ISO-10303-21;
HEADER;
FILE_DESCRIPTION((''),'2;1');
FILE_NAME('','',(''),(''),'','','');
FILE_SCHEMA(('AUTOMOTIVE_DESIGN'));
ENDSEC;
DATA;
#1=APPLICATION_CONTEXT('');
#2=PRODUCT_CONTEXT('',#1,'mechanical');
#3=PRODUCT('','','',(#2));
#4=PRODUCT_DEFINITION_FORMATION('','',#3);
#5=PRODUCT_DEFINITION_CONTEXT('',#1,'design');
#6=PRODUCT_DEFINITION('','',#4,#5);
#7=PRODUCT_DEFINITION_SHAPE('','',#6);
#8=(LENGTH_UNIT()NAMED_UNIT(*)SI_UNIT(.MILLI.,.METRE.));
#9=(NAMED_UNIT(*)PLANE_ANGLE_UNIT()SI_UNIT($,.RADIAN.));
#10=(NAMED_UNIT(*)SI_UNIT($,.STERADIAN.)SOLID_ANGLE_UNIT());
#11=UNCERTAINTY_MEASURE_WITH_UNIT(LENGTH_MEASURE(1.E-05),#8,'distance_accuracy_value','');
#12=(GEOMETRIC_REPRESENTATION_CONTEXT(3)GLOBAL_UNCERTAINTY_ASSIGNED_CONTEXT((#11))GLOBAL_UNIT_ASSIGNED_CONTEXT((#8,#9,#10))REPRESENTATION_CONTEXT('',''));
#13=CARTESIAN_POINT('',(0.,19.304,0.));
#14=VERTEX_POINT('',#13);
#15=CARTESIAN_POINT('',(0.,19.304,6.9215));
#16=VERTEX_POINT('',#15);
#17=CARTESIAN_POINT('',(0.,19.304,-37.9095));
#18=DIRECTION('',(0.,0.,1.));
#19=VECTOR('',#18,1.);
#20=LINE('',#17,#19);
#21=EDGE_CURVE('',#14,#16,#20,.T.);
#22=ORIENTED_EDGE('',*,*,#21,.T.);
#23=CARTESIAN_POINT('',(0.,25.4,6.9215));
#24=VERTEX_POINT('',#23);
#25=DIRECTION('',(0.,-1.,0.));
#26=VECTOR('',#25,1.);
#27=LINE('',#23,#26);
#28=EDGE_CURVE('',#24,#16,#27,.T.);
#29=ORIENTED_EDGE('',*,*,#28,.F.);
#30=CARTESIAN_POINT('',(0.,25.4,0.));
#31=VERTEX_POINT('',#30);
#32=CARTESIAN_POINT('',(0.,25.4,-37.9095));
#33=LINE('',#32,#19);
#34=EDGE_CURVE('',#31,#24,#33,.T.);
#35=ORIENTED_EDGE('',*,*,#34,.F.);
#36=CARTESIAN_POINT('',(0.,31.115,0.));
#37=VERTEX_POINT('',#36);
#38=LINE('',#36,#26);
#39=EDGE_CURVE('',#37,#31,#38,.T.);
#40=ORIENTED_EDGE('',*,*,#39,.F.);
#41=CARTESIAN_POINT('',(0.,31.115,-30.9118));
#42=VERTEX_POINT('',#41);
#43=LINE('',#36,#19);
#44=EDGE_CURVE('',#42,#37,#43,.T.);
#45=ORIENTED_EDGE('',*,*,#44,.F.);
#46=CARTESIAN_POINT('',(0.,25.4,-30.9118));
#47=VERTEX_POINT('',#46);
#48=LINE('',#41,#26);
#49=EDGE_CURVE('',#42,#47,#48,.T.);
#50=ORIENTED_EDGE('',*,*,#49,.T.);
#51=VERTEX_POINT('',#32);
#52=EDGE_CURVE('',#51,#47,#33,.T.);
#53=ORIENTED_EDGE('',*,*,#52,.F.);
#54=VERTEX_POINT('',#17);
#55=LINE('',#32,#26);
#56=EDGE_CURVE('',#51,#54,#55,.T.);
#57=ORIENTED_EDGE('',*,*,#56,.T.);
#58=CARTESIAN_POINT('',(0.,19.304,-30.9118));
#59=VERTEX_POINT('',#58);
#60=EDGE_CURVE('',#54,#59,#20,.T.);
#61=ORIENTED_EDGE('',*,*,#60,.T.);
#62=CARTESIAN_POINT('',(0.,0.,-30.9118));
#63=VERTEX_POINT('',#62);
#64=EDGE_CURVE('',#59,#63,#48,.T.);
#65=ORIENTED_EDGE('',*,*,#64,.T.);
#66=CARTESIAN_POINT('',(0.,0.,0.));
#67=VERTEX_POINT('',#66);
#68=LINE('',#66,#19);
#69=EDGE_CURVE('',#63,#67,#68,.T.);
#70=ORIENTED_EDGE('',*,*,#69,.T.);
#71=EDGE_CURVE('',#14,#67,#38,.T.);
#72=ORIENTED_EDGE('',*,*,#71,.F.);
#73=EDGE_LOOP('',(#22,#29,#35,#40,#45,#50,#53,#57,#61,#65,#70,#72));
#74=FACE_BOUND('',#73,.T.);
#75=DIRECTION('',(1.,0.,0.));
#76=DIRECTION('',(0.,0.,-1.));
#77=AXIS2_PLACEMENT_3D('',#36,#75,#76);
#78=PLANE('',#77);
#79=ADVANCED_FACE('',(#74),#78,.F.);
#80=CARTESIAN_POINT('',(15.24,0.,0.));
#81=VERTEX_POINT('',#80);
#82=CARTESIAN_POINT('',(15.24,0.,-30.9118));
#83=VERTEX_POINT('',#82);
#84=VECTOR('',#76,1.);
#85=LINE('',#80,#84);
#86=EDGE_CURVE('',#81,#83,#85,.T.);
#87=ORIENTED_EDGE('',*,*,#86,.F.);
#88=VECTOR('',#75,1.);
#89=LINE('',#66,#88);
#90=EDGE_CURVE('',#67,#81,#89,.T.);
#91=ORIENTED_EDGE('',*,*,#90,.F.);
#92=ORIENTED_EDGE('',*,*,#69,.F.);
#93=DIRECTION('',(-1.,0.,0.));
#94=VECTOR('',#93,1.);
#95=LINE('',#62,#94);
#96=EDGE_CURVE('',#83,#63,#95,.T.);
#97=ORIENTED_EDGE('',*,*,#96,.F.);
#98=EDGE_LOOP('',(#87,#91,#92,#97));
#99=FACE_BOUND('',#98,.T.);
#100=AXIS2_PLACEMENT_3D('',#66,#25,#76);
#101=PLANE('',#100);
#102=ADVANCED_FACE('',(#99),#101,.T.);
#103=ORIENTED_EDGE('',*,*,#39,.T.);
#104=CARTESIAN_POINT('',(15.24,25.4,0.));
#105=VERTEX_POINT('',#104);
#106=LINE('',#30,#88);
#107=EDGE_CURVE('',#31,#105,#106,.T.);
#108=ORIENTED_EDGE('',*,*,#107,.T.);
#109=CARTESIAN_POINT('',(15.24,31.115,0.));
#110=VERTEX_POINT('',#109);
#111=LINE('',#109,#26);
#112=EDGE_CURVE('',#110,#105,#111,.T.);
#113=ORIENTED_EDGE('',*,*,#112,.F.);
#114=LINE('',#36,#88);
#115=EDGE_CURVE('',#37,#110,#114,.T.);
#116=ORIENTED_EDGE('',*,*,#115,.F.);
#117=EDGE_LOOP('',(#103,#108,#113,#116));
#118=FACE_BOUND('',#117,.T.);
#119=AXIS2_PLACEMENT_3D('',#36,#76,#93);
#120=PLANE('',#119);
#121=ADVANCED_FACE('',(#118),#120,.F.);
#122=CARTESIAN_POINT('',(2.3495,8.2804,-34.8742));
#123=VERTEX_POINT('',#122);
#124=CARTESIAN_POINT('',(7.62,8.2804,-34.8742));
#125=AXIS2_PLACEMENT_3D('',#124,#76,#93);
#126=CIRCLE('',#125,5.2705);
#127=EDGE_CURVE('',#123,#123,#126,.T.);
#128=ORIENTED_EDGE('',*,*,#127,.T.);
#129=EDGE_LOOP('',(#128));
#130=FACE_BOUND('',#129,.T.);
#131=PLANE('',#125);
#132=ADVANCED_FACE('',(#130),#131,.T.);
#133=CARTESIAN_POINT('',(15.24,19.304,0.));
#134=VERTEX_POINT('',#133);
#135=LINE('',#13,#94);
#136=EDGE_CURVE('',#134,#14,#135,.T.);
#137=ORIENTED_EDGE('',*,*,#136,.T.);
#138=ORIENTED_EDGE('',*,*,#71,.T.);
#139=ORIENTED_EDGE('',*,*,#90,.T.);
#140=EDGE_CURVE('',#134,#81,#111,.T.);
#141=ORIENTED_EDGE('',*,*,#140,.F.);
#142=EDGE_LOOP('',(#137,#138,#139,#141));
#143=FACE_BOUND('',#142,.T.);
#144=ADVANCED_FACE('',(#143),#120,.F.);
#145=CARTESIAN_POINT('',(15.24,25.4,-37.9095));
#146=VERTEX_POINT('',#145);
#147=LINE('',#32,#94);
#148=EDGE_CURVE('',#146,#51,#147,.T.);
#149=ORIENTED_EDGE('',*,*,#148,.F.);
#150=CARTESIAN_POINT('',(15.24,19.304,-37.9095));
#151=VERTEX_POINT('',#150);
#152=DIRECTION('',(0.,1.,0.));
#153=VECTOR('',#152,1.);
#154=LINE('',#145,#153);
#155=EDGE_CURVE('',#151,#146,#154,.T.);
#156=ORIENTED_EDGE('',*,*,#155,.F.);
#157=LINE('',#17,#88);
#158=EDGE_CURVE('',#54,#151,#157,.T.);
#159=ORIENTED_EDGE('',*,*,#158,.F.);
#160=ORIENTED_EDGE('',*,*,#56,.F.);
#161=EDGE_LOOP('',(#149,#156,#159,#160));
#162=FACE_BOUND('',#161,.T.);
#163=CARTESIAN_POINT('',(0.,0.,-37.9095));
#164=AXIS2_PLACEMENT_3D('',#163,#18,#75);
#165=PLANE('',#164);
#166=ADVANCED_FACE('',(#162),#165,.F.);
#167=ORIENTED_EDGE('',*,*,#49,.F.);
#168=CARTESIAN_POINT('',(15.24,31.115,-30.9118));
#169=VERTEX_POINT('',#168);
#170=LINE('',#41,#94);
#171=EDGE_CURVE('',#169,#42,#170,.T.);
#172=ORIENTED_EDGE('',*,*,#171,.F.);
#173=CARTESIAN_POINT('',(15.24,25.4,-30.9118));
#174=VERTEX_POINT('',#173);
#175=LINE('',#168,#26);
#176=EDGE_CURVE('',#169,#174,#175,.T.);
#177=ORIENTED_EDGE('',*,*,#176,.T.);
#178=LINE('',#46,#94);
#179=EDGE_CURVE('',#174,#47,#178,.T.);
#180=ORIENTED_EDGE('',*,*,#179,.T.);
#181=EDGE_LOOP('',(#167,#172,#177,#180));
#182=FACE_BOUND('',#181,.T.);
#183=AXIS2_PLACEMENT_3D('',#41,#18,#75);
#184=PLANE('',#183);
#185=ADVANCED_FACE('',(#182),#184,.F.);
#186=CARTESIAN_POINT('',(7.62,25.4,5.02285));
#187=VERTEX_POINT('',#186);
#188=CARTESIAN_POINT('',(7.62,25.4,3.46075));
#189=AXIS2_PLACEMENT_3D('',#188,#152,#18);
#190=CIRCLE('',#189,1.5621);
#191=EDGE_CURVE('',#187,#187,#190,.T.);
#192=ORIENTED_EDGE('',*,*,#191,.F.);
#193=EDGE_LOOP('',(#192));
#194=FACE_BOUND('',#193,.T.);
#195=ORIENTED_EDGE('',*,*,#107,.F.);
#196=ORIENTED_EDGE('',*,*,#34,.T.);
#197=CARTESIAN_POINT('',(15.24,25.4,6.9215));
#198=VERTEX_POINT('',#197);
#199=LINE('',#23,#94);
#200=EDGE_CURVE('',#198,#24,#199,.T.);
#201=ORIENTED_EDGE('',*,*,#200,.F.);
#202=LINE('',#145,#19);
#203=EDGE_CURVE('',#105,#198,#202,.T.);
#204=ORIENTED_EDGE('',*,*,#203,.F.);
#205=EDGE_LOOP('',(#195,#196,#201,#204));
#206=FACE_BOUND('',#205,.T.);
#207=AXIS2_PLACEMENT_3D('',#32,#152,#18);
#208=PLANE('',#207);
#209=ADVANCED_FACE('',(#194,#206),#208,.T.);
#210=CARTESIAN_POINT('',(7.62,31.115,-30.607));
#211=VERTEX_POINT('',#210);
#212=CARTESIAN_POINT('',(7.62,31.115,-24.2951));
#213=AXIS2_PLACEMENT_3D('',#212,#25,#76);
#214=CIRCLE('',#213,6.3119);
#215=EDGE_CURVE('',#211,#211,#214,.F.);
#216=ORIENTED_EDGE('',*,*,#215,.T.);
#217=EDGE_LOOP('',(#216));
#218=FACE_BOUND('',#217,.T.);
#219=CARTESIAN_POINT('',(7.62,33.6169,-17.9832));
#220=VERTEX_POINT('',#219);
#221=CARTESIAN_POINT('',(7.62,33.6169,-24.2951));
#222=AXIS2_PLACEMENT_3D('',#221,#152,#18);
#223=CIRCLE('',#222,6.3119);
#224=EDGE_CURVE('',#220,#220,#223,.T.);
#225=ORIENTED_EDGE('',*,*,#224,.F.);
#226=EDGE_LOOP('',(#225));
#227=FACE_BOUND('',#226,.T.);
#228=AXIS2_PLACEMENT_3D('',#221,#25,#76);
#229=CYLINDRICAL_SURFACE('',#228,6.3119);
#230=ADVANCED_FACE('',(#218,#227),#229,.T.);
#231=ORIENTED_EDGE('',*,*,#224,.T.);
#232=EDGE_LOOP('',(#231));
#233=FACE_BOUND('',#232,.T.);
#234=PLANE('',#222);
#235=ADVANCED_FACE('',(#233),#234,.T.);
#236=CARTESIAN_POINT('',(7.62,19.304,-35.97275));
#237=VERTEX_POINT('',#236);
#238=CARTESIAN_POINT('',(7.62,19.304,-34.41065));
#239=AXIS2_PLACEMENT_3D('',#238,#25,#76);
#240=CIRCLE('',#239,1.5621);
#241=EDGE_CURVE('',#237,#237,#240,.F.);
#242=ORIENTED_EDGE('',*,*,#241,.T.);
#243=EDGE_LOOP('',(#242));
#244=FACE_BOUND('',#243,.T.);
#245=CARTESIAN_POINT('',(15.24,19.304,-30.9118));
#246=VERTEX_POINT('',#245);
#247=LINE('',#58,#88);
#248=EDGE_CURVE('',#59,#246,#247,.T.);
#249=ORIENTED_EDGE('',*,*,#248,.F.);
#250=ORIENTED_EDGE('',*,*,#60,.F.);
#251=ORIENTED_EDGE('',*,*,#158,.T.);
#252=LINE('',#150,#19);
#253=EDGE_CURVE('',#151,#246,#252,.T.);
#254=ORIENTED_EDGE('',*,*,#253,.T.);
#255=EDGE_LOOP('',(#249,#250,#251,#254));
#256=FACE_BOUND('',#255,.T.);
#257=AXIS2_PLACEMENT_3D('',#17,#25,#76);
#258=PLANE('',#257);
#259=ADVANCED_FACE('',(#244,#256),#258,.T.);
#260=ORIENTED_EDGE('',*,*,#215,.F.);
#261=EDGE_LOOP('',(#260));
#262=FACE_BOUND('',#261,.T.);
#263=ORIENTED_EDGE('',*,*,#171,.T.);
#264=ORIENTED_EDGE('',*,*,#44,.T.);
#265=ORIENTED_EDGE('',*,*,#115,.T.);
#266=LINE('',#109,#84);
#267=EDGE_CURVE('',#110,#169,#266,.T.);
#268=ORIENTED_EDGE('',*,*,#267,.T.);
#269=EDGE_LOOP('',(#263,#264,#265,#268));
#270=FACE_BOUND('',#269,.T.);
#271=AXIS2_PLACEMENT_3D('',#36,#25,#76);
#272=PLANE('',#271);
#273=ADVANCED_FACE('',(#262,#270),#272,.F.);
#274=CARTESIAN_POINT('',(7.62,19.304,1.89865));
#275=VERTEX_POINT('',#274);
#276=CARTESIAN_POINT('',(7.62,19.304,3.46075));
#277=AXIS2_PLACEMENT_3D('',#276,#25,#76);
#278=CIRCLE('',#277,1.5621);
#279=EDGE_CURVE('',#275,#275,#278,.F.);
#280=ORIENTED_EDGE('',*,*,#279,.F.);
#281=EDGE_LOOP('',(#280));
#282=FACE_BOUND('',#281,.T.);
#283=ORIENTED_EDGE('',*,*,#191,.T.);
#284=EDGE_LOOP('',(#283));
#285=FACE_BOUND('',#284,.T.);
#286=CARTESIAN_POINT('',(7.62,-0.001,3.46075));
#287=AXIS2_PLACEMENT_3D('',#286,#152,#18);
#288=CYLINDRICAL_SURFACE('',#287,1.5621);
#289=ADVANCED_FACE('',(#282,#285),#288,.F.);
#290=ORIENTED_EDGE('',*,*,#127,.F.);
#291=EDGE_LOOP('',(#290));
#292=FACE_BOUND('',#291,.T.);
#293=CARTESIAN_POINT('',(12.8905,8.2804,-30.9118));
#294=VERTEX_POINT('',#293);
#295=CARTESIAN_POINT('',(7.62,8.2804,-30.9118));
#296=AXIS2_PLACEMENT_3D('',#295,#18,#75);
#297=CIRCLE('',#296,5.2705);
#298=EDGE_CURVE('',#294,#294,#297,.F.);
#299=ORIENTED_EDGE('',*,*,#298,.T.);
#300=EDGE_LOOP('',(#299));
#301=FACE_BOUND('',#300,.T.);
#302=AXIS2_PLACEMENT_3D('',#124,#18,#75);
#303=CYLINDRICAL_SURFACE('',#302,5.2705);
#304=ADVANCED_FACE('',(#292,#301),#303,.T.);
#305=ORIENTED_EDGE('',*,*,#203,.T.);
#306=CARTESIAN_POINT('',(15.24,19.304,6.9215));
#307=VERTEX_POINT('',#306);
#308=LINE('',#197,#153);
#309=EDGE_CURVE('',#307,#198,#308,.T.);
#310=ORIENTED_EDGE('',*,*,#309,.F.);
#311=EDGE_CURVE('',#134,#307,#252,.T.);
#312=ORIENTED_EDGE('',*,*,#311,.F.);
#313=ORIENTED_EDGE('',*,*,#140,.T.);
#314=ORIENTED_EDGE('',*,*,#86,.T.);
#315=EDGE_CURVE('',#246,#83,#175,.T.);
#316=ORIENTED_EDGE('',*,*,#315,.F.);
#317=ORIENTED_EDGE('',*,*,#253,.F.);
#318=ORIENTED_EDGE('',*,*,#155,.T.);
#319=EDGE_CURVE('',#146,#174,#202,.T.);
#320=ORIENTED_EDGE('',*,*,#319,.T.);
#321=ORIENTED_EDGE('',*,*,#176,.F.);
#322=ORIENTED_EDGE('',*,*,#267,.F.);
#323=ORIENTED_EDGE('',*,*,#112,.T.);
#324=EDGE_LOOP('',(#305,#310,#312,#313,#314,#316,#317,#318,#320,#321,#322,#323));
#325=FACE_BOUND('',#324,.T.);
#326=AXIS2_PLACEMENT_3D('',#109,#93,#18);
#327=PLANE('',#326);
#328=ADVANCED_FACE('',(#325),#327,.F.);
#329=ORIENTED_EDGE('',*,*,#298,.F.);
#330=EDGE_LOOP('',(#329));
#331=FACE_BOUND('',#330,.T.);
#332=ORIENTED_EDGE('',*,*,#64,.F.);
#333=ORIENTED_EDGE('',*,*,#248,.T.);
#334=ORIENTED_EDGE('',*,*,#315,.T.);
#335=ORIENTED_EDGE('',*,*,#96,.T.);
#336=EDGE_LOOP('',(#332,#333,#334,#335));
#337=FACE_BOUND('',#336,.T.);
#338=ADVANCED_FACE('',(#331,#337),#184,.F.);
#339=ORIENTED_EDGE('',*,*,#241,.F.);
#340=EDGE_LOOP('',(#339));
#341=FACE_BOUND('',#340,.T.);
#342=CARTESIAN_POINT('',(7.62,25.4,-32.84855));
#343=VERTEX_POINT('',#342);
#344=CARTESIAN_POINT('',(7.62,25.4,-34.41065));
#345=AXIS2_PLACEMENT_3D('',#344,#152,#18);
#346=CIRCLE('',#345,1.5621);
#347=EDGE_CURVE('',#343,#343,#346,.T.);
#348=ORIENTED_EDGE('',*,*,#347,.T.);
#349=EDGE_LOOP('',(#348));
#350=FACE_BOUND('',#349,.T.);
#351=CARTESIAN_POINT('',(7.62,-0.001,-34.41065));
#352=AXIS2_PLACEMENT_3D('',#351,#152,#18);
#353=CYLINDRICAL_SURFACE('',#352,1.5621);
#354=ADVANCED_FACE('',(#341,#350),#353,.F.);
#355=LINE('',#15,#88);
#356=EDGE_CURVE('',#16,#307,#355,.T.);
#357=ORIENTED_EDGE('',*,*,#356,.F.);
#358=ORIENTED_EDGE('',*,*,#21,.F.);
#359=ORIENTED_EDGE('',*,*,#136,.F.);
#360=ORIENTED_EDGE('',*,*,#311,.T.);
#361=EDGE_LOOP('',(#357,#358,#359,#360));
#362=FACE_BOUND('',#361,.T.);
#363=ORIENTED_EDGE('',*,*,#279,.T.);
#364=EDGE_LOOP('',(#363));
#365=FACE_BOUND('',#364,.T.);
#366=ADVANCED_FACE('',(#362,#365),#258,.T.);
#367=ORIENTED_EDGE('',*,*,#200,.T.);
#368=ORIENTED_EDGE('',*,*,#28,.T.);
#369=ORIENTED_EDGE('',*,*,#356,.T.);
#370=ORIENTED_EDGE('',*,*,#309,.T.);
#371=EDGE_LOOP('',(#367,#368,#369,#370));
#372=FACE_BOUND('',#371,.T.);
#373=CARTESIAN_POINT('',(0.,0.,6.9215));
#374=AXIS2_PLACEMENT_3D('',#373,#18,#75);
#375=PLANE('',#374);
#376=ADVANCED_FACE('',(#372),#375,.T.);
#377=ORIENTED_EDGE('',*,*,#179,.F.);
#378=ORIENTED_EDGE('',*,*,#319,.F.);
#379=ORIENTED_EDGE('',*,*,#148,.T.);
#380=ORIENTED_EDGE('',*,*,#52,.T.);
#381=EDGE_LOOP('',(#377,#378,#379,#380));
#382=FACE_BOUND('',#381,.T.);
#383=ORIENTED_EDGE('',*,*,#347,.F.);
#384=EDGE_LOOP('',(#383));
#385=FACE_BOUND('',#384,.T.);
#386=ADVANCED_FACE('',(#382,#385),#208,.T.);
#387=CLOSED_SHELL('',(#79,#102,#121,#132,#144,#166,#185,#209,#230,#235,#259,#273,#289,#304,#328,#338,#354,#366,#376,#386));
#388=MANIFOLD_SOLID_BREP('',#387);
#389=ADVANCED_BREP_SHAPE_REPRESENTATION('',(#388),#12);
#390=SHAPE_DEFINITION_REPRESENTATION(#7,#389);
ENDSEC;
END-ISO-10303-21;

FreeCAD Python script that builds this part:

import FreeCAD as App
import Part
import Sketcher

V = App.Vector
Q = App.Units.Quantity


def add_polygon(sketch, points):
    """Adds a closed chain of lines whose ends are joined by coincident constraints."""
    first, n = sketch.GeometryCount, len(points)
    for a, b in zip(points, points[1:] + points[:1]):
        sketch.addGeometry(Part.LineSegment(App.Vector(*a, 0), App.Vector(*b, 0)), False)
    for i in range(n):
        sketch.addConstraint(Sketcher.Constraint("Coincident", first + i, 2, first + (i + 1) % n, 1))

doc = App.newDocument("Part")
body = doc.addObject("PartDesign::Body", "Body")

sketch1 = body.newObject("Sketcher::SketchObject", "Sketch")
sketch1.AttachmentSupport = (doc.getObject("XZ_Plane"), [""])
sketch1.MapMode = "FlatFace"
add_polygon(sketch1, [(0, -30.9118), (0, 0), (15.24, 0), (15.24, -30.9118)])
sketch1.addConstraint([
    Sketcher.Constraint("Vertical", 0),
    Sketcher.Constraint("Horizontal", 1),
    Sketcher.Constraint("Vertical", 2),
    Sketcher.Constraint("Horizontal", 3),
    Sketcher.Constraint("Coincident", 0, 2, -1, 1),
    Sketcher.Constraint("DistanceX", 1, 1, 1, 2, Q("0.6 in")),
    Sketcher.Constraint("DistanceY", 0, 1, 0, 2, Q("1.217 in")),
])
pad1 = body.newObject("PartDesign::Pad", "Pad")
pad1.Profile = sketch1
pad1.Length = Q("1.225 in")
pad1.Reversed = True

sketch2 = body.newObject("Sketcher::SketchObject", "Sketch001")
sketch2.AttachmentSupport = (doc.getObject("XY_Plane"), [""])
sketch2.MapMode = "FlatFace"
add_polygon(sketch2, [(0, 25.4), (0, 19.304), (15.24, 19.304), (15.24, 25.4)])
sketch2.addConstraint([
    Sketcher.Constraint("Vertical", 0),
    Sketcher.Constraint("Horizontal", 1),
    Sketcher.Constraint("Vertical", 2),
    Sketcher.Constraint("Horizontal", 3),
    Sketcher.Constraint("PointOnObject", 0, 2, -2),
    Sketcher.Constraint("DistanceX", 1, 1, 1, 2, Q("0.6 in")),
    Sketcher.Constraint("DistanceY", -1, 1, 2, 2, Q("1 in")),
    Sketcher.Constraint("DistanceY", 0, 2, 0, 1, Q("0.24 in")),
])
pad2 = body.newObject("PartDesign::Pad", "Pad001")
pad2.Profile = sketch2
pad2.Type = "TwoLengths"
pad2.Length = Q("0.2725 in")
pad2.Length2 = Q("1.4925 in")

sketch3 = body.newObject("Sketcher::SketchObject", "Sketch002")
sketch3.AttachmentSupport = (doc.getObject("XY_Plane"), [""])
sketch3.MapMode = "FlatFace"
sketch3.AttachmentOffset = App.Placement(V(0, 0, -1.217 * 25.4), App.Rotation())
sketch3.addGeometry(Part.Circle(V(7.62, 8.2804, 0), V(0, 0, 1), 5.2705), False)
sketch3.addConstraint([
    Sketcher.Constraint("Diameter", 0, Q("0.415 in")),
    Sketcher.Constraint("DistanceX", -1, 1, 0, 3, Q("0.3 in")),
    Sketcher.Constraint("DistanceY", -1, 1, 0, 3, Q("0.326 in")),
])
pad3 = body.newObject("PartDesign::Pad", "Pad002")
pad3.Profile = sketch3
pad3.Length = Q("0.156 in")
pad3.Reversed = True

sketch4 = body.newObject("Sketcher::SketchObject", "Sketch003")
sketch4.AttachmentSupport = (doc.getObject("XZ_Plane"), [""])
sketch4.MapMode = "FlatFace"
sketch4.AttachmentOffset = App.Placement(V(0, 0, -1.225 * 25.4), App.Rotation())
sketch4.addGeometry(Part.Circle(V(7.62, -24.2951, 0), V(0, 0, 1), 6.3119), False)
sketch4.addConstraint([
    Sketcher.Constraint("Diameter", 0, Q("0.497 in")),
    Sketcher.Constraint("DistanceX", -1, 1, 0, 3, Q("0.3 in")),
    Sketcher.Constraint("DistanceY", 0, 3, -1, 1, Q("0.9565 in")),
])
pad4 = body.newObject("PartDesign::Pad", "Pad003")
pad4.Profile = sketch4
pad4.Length = Q("0.0985 in")
pad4.Reversed = True

sketch5 = body.newObject("Sketcher::SketchObject", "Sketch004")
sketch5.AttachmentSupport = (doc.getObject("XZ_Plane"), [""])
sketch5.MapMode = "FlatFace"
sketch5.AttachmentOffset = App.Placement(V(0, 0, -1 * 25.4), App.Rotation())
sketch5.addGeometry(Part.Circle(V(7.62, 3.46075, 0), V(0, 0, 1), 1.5621), False)
sketch5.addConstraint([
    Sketcher.Constraint("Diameter", 0, Q("0.123 in")),
    Sketcher.Constraint("DistanceX", -1, 1, 0, 3, Q("0.3 in")),
    Sketcher.Constraint("DistanceY", -1, 1, 0, 3, Q("3.46075 mm")),
])
pocket1 = body.newObject("PartDesign::Pocket", "Pocket")
pocket1.Profile = sketch5
pocket1.Type = "UpToFirst"
pocket1.Reversed = True

sketch6 = body.newObject("Sketcher::SketchObject", "Sketch005")
sketch6.AttachmentSupport = (doc.getObject("XZ_Plane"), [""])
sketch6.MapMode = "FlatFace"
sketch6.AttachmentOffset = App.Placement(V(0, 0, -1 * 25.4), App.Rotation())
sketch6.addGeometry(Part.Circle(V(7.62, -34.41065, 0), V(0, 0, 1), 1.5621), False)
sketch6.addConstraint([
    Sketcher.Constraint("Diameter", 0, Q("0.123 in")),
    Sketcher.Constraint("DistanceX", -1, 1, 0, 3, Q("0.3 in")),
    Sketcher.Constraint("DistanceY", 0, 3, -1, 1, Q("34.41065 mm")),
])
pocket2 = body.newObject("PartDesign::Pocket", "Pocket001")
pocket2.Profile = sketch6
pocket2.Type = "UpToFirst"
pocket2.Reversed = True

doc.recompute()
